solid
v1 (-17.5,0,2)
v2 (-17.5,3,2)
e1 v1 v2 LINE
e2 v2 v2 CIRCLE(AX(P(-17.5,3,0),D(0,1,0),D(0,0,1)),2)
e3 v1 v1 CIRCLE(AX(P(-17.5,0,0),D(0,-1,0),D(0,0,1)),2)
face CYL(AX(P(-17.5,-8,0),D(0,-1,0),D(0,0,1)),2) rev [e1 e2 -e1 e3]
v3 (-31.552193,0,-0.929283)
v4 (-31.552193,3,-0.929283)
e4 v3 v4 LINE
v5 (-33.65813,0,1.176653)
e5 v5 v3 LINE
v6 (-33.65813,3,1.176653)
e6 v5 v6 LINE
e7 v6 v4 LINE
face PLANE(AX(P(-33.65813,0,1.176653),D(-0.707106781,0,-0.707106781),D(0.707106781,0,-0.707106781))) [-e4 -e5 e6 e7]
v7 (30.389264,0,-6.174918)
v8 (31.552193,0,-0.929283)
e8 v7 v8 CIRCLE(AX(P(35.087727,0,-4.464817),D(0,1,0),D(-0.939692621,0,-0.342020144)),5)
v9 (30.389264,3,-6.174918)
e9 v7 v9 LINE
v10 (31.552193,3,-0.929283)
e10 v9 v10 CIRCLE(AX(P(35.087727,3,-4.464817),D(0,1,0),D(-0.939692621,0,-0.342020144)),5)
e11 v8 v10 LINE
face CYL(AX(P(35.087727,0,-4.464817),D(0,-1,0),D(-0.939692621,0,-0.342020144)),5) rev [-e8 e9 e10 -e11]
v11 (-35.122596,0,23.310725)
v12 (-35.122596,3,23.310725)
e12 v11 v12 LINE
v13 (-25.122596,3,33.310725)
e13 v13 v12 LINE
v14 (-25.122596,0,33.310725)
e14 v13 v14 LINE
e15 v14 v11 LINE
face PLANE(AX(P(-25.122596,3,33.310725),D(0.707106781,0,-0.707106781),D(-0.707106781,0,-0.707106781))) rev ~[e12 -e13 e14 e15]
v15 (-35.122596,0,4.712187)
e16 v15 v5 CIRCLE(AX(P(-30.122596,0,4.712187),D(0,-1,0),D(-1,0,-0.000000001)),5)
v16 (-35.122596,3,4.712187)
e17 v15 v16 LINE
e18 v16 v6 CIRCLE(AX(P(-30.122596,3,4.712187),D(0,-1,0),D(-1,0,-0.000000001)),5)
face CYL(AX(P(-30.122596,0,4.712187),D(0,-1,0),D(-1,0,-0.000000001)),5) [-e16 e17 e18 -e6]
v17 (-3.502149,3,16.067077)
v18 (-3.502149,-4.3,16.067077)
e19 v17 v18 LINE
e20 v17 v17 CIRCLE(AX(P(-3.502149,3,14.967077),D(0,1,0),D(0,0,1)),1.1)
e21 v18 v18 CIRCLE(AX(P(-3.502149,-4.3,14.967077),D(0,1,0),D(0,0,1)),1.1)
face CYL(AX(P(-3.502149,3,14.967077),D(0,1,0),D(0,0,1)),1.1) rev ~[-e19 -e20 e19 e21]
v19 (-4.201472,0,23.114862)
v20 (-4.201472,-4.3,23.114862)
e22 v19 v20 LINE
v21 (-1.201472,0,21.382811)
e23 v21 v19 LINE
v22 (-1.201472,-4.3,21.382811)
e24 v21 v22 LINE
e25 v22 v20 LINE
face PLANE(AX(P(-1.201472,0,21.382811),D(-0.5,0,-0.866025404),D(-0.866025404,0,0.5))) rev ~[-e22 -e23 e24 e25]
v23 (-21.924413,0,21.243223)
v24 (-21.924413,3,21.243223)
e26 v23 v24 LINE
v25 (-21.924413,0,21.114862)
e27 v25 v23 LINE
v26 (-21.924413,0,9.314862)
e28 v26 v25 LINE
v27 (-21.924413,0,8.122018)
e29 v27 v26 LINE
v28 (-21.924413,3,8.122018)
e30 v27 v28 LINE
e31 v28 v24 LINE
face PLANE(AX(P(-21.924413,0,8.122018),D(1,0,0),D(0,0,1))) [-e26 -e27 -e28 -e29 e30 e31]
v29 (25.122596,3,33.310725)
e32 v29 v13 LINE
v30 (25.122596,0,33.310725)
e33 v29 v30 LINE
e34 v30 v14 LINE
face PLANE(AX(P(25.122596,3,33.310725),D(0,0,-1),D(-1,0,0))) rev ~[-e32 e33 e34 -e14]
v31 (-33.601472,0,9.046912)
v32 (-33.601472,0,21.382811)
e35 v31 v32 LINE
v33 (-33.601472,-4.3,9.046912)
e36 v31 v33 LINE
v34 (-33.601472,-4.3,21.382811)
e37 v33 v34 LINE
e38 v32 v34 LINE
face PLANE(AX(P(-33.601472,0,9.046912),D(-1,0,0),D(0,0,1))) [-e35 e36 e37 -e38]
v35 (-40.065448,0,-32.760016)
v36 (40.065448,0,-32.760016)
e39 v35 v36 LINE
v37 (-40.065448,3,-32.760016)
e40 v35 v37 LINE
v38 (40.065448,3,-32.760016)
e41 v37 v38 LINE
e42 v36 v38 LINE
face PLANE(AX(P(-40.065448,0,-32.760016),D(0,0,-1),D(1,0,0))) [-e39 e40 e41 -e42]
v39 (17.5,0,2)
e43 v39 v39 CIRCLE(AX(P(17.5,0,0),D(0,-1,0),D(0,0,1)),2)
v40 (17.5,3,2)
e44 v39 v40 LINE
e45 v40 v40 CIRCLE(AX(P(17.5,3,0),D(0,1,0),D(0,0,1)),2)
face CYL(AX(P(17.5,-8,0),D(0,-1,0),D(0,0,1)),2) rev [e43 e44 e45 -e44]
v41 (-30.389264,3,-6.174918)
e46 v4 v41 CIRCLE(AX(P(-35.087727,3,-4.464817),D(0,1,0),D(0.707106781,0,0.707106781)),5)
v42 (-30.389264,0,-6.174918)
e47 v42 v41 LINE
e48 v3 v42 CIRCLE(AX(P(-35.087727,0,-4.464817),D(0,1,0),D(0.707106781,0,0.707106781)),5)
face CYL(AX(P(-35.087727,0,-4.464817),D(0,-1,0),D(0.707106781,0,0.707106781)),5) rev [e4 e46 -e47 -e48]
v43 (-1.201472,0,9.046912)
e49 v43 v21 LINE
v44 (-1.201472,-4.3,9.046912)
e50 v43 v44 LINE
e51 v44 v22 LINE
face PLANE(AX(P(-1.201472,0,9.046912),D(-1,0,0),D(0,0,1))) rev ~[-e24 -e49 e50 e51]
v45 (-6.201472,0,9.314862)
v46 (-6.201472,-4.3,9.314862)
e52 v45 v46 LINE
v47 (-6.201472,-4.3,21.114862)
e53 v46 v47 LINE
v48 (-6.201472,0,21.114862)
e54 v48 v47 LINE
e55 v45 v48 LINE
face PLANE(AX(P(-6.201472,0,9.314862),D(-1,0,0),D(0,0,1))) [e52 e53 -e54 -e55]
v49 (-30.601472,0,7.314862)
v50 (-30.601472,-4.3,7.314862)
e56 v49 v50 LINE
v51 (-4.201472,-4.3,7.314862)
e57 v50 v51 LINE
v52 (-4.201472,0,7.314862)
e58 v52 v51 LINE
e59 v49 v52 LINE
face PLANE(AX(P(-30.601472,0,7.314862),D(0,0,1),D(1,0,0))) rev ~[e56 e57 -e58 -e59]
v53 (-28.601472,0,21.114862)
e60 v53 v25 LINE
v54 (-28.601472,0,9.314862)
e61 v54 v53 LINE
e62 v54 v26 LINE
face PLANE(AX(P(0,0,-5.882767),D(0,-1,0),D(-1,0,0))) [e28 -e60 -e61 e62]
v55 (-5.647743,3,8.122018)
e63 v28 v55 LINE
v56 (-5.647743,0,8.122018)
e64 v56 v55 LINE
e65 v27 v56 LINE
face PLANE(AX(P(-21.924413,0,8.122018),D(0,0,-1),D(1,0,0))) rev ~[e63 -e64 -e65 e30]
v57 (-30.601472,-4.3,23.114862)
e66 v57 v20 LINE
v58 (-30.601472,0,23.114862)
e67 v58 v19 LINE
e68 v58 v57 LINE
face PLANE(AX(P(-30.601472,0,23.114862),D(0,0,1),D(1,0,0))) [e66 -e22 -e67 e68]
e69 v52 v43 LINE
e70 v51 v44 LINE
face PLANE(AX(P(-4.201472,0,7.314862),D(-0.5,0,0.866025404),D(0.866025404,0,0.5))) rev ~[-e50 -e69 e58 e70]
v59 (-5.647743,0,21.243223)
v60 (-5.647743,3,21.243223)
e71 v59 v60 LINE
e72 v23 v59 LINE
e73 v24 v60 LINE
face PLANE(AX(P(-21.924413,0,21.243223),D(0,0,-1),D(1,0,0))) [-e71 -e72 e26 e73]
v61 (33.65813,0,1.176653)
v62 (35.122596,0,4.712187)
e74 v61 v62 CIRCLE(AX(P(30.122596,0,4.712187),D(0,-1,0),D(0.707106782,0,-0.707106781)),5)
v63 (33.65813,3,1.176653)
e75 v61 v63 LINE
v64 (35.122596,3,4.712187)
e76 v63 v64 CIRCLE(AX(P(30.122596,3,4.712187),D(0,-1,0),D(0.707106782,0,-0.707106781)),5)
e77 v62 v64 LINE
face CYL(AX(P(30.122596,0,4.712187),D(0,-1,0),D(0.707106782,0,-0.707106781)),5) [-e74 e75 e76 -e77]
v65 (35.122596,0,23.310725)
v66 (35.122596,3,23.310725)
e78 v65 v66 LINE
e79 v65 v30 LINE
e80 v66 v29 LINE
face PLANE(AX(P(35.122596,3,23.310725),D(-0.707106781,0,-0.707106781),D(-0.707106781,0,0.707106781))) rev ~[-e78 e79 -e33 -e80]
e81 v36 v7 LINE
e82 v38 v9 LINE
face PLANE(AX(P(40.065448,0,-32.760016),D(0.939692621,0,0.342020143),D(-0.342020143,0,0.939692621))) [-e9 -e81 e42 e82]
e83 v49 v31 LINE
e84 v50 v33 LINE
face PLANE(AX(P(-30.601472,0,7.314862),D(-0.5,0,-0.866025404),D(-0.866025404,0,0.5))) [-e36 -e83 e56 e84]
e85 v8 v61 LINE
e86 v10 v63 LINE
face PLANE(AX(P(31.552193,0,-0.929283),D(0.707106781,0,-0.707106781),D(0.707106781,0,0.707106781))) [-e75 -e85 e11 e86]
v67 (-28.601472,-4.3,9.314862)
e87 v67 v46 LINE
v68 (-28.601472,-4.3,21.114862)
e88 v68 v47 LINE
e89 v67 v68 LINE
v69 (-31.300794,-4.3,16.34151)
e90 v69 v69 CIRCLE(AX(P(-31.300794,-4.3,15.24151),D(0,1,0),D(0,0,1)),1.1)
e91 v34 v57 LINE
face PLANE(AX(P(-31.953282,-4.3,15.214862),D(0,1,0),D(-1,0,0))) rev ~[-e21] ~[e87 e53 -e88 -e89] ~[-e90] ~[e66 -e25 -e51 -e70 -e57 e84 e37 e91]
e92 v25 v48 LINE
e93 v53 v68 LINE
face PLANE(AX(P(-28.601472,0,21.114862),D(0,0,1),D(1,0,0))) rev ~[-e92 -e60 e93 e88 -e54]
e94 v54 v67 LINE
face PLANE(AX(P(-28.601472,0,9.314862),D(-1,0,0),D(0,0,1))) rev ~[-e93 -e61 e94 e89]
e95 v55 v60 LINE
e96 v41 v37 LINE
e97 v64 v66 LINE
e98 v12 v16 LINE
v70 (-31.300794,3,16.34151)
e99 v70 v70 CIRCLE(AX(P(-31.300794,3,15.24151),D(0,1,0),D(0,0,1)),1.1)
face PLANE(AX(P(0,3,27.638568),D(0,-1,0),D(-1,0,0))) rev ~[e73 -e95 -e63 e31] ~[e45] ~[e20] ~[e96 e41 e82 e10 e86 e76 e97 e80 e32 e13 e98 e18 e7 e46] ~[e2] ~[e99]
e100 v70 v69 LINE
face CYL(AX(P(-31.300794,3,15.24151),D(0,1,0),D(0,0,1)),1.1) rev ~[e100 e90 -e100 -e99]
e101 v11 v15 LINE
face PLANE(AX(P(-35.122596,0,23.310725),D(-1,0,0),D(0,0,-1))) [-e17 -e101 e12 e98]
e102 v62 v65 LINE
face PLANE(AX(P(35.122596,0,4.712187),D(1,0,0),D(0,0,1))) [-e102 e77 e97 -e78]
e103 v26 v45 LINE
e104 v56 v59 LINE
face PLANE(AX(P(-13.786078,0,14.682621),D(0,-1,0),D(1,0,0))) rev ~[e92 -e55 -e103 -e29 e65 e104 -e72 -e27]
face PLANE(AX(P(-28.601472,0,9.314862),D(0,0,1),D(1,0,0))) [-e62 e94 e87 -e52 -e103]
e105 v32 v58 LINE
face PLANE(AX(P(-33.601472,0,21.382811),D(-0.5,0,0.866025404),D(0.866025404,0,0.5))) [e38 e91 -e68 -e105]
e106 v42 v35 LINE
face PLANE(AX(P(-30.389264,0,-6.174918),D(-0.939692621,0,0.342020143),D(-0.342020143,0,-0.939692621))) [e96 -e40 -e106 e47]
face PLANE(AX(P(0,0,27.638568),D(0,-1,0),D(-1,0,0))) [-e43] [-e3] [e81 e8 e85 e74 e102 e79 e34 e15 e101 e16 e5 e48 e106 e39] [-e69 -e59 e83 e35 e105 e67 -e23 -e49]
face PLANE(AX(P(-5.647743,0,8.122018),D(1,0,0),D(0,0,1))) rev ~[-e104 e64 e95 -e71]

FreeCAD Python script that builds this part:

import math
import FreeCAD as App
import Part
import Sketcher
Q = App.Units.Quantity


def add_polygon(sketch, points):
    """Adds a closed chain of lines whose ends are joined by coincident constraints."""
    first, n = sketch.GeometryCount, len(points)
    for a, b in zip(points, points[1:] + points[:1]):
        sketch.addGeometry(Part.LineSegment(App.Vector(*a, 0), App.Vector(*b, 0)), False)
    for i in range(n):
        sketch.addConstraint(Sketcher.Constraint("Coincident", first + i, 2, first + (i + 1) % n, 1))

doc = App.newDocument("Part")
body = doc.addObject("PartDesign::Body", "Body")

sketch1 = body.newObject("Sketcher::SketchObject", "Sketch")
sketch1.AttachmentSupport = (doc.getObject("XZ_Plane"), [""])
sketch1.MapMode = "FlatFace"
sketch1.addGeometry(Part.LineSegment(App.Vector(-40.1, -32.8, 0), App.Vector(-30.4, -6.2, 0)), False)
sketch1.addGeometry(Part.ArcOfCircle(Part.Circle(App.Vector(-35.1, -4.5, 0), App.Vector(0, 0, 1), 5), math.radians(-20), math.radians(45)), False)
sketch1.addGeometry(Part.LineSegment(App.Vector(-31.6, -0.9, 0), App.Vector(-33.7, 1.2, 0)), False)
sketch1.addGeometry(Part.ArcOfCircle(Part.Circle(App.Vector(-30.1, 4.7, 0), App.Vector(0, 0, 1), 5), math.radians(-180), math.radians(-135)), False)
sketch1.addGeometry(Part.LineSegment(App.Vector(-35.1, 4.7, 0), App.Vector(-35.1, 23.3, 0)), False)
sketch1.addGeometry(Part.LineSegment(App.Vector(-35.1, 23.3, 0), App.Vector(35.1, 23.3, 0)), False)
sketch1.addGeometry(Part.LineSegment(App.Vector(35.1, 23.3, 0), App.Vector(35.1, 4.7, 0)), False)
sketch1.addGeometry(Part.ArcOfCircle(Part.Circle(App.Vector(30.1, 4.7, 0), App.Vector(0, 0, 1), 5), math.radians(-45), math.radians(0)), False)
sketch1.addGeometry(Part.LineSegment(App.Vector(33.7, 1.2, 0), App.Vector(31.6, -0.9, 0)), False)
sketch1.addGeometry(Part.ArcOfCircle(Part.Circle(App.Vector(35.1, -4.5, 0), App.Vector(0, 0, 1), 5), math.radians(135), math.radians(200)), False)
sketch1.addGeometry(Part.LineSegment(App.Vector(30.4, -6.2, 0), App.Vector(40.1, -32.8, 0)), False)
sketch1.addGeometry(Part.LineSegment(App.Vector(40.1, -32.8, 0), App.Vector(-40.1, -32.8, 0)), False)
sketch1.addConstraint(Sketcher.Constraint("Tangent", 0, 2, 1, 1))
sketch1.addConstraint(Sketcher.Constraint("Tangent", 1, 2, 2, 1))
sketch1.addConstraint(Sketcher.Constraint("Tangent", 2, 2, 3, 2))
sketch1.addConstraint(Sketcher.Constraint("Tangent", 3, 1, 4, 1))
sketch1.addConstraint(Sketcher.Constraint("Coincident", 4, 2, 5, 1))
sketch1.addConstraint(Sketcher.Constraint("Coincident", 5, 2, 6, 1))
sketch1.addConstraint(Sketcher.Constraint("Tangent", 6, 2, 7, 2))
sketch1.addConstraint(Sketcher.Constraint("Tangent", 7, 1, 8, 1))
sketch1.addConstraint(Sketcher.Constraint("Tangent", 8, 2, 9, 1))
sketch1.addConstraint(Sketcher.Constraint("Tangent", 9, 2, 10, 1))
sketch1.addConstraint(Sketcher.Constraint("Coincident", 10, 2, 11, 1))
sketch1.addConstraint(Sketcher.Constraint("Coincident", 11, 2, 0, 1))
sketch1.addConstraint(Sketcher.Constraint("Vertical", 4))
sketch1.addConstraint(Sketcher.Constraint("Horizontal", 5))
sketch1.addConstraint(Sketcher.Constraint("Vertical", 6))
sketch1.addConstraint(Sketcher.Constraint("Horizontal", 11))
sketch1.addConstraint(Sketcher.Constraint("Equal", 1, 3))
sketch1.addConstraint(Sketcher.Constraint("Equal", 3, 7))
sketch1.addConstraint(Sketcher.Constraint("Equal", 7, 9))
sketch1.addConstraint(Sketcher.Constraint("Symmetric", 3, 3, 7, 3, -2))
sketch1.addConstraint(Sketcher.Constraint("Symmetric", 1, 3, 9, 3, -2))
sketch1.addConstraint(Sketcher.Constraint("Perpendicular", 2, 8))
sketch1.addConstraint(Sketcher.Constraint("Horizontal", 0, 2, 9, 2))
sketch1.addConstraint(Sketcher.Constraint("Radius", 1, Q("5 mm")))
sketch1.addConstraint(Sketcher.Constraint("Angle", 0, Q("70 deg")))
sketch1.addConstraint(Sketcher.Constraint("DistanceX", 5, 1, 5, 2, Q("70.245192 mm")))
sketch1.addConstraint(Sketcher.Constraint("DistanceY", 4, 1, 4, 2, Q("18.598538 mm")))
sketch1.addConstraint(Sketcher.Constraint("DistanceY", 10, 2, 9, 2, Q("26.585098 mm")))
sketch1.addConstraint(Sketcher.Constraint("DistanceX", 11, 2, 11, 1, Q("80.130897 mm")))
sketch1.addConstraint(Sketcher.Constraint("DistanceY", 1, 3, -1, 1, Q("4.464817 mm")))
pad1 = body.newObject("PartDesign::Pad", "Pad")
pad1.Profile = sketch1
pad1.Length = 3
pad1.Reversed = True

sketch2 = body.newObject("Sketcher::SketchObject", "Sketch001")
sketch2.AttachmentSupport = (doc.getObject("XZ_Plane"), [""])
sketch2.MapMode = "FlatFace"
sketch2.AttachmentOffset = App.Placement(App.Vector(0, 0, -3), App.Rotation())
sketch2.addGeometry(Part.Circle(App.Vector(17.5, 0, 0), App.Vector(0, 0, 1), 2), False)
sketch2.addGeometry(Part.Circle(App.Vector(-17.5, 0, 0), App.Vector(0, 0, 1), 2), False)
sketch2.addConstraint(Sketcher.Constraint("Equal", 0, 1))
sketch2.addConstraint(Sketcher.Constraint("Symmetric", 0, 3, 1, 3, -1, 1))
sketch2.addConstraint(Sketcher.Constraint("PointOnObject", 0, 3, -1))
sketch2.addConstraint(Sketcher.Constraint("Diameter", 0, Q("4 mm")))
sketch2.addConstraint(Sketcher.Constraint("DistanceX", 1, 3, 0, 3, Q("35 mm")))
pad2 = body.newObject("PartDesign::Pad", "Pad001")
pad2.Profile = sketch2
pad2.Length = 10
pad2.Reversed = True

sketch3 = body.newObject("Sketcher::SketchObject", "Sketch002")
sketch3.AttachmentSupport = (doc.getObject("XZ_Plane"), [""])
sketch3.MapMode = "FlatFace"
sketch3.AttachmentOffset = App.Placement(App.Vector(0, 0, -3), App.Rotation())
sketch3.addGeometry(Part.Circle(App.Vector(-31.3, 15.2, 0), App.Vector(0, 0, 1), 1.1), False)
sketch3.addGeometry(Part.Circle(App.Vector(-3.5, 15, 0), App.Vector(0, 0, 1), 1.1), False)
sketch3.addConstraint(Sketcher.Constraint("Equal", 0, 1))
sketch3.addConstraint(Sketcher.Constraint("Diameter", 0, Q("2.2 mm")))
sketch3.addConstraint(Sketcher.Constraint("DistanceY", -1, 1, 0, 3, Q("15.24151 mm")))
sketch3.addConstraint(Sketcher.Constraint("DistanceX", 1, 3, -1, 1, Q("3.502149 mm")))
sketch3.addConstraint(Sketcher.Constraint("DistanceX", 0, 3, -1, 1, Q("31.300794 mm")))
sketch3.addConstraint(Sketcher.Constraint("DistanceY", -1, 1, 1, 3, Q("14.967077 mm")))
pocket1 = body.newObject("PartDesign::Pocket", "Pocket")
pocket1.Profile = sketch3
pocket1.Length = 10
pocket1.Reversed = True

sketch4 = body.newObject("Sketcher::SketchObject", "Sketch003")
sketch4.AttachmentSupport = (doc.getObject("XZ_Plane"), [""])
sketch4.MapMode = "FlatFace"
add_polygon(sketch4, [(-31, 23), (-31, 7), (-4, 7), (-4, 23)])
add_polygon(sketch4, [(-6, 9), (-29, 9), (-29, 21), (-6, 21)])
sketch4.addConstraint(Sketcher.Constraint("Vertical", 0))
sketch4.addConstraint(Sketcher.Constraint("Horizontal", 1))
sketch4.addConstraint(Sketcher.Constraint("Vertical", 2))
sketch4.addConstraint(Sketcher.Constraint("Horizontal", 3))
sketch4.addConstraint(Sketcher.Constraint("Horizontal", 4))
sketch4.addConstraint(Sketcher.Constraint("Vertical", 5))
sketch4.addConstraint(Sketcher.Constraint("Horizontal", 6))
sketch4.addConstraint(Sketcher.Constraint("Vertical", 7))
sketch4.addConstraint(Sketcher.Constraint("DistanceX", 1, 1, 1, 2, Q("26.4 mm")))
sketch4.addConstraint(Sketcher.Constraint("DistanceX", 4, 2, 4, 1, Q("22.4 mm")))
sketch4.addConstraint(Sketcher.Constraint("DistanceY", 0, 2, 0, 1, Q("15.8 mm")))
sketch4.addConstraint(Sketcher.Constraint("DistanceY", 5, 1, 5, 2, Q("11.8 mm")))
sketch4.addConstraint(Sketcher.Constraint("DistanceX", 0, 2, 4, 2, Q("2 mm")))
sketch4.addConstraint(Sketcher.Constraint("DistanceY", 0, 2, 4, 2, Q("2 mm")))
sketch4.addConstraint(Sketcher.Constraint("DistanceX", 0, 2, -1, 1, Q("30.601472 mm")))
sketch4.addConstraint(Sketcher.Constraint("DistanceY", -1, 1, 0, 2, Q("7.314862 mm")))
pad3 = body.newObject("PartDesign::Pad", "Pad002")
pad3.Profile = sketch4
pad3.Length = 4.3

sketch5 = body.newObject("Sketcher::SketchObject", "Sketch004")
sketch5.AttachmentSupport = (doc.getObject("XZ_Plane"), [""])
sketch5.MapMode = "FlatFace"
add_polygon(sketch5, [(-30.6, 7.3), (-30.6, 23.1), (-33.6, 21.4), (-33.6, 9)])
add_polygon(sketch5, [(-1.2, 21.4), (-4.2, 23.1), (-4.2, 7.3), (-1.2, 9)])
sketch5.addConstraint(Sketcher.Constraint("Vertical", 0))
sketch5.addConstraint(Sketcher.Constraint("Vertical", 2))
sketch5.addConstraint(Sketcher.Constraint("Vertical", 5))
sketch5.addConstraint(Sketcher.Constraint("Vertical", 7))
sketch5.addConstraint(Sketcher.Constraint("Parallel", 3, 4))
sketch5.addConstraint(Sketcher.Constraint("Parallel", 1, 6))
sketch5.addConstraint(Sketcher.Constraint("Horizontal", 0, 2, 4, 2))
sketch5.addConstraint(Sketcher.Constraint("Horizontal", 3, 2, 5, 2))
sketch5.addConstraint(Sketcher.Constraint("Horizontal", 2, 2, 6, 2))
sketch5.addConstraint(Sketcher.Constraint("Horizontal", 1, 2, 7, 2))
sketch5.addConstraint(Sketcher.Constraint("Angle", 1, Q("-150 deg")))
sketch5.addConstraint(Sketcher.Constraint("DistanceY", 0, 1, 0, 2, Q("15.8 mm")))
sketch5.addConstraint(Sketcher.Constraint("DistanceX", 1, 2, 0, 2, Q("3 mm")))
sketch5.addConstraint(Sketcher.Constraint("DistanceX", 0, 2, 4, 2, Q("26.4 mm")))
sketch5.addConstraint(Sketcher.Constraint("DistanceX", 0, 2, -1, 1, Q("30.601472 mm")))
sketch5.addConstraint(Sketcher.Constraint("DistanceY", -1, 1, 0, 2, Q("23.114862 mm")))
pad4 = body.newObject("PartDesign::Pad", "Pad003")
pad4.Profile = sketch5
pad4.Length = 4.3

sketch6 = body.newObject("Sketcher::SketchObject", "Sketch005")
sketch6.AttachmentSupport = (doc.getObject("XZ_Plane"), [""])
sketch6.MapMode = "FlatFace"
sketch6.AttachmentOffset = App.Placement(App.Vector(0, 0, -3), App.Rotation())
sketch6.addGeometry(Part.Circle(App.Vector(-31.3, 15.2, 0), App.Vector(0, 0, 1), 1.1), False)
sketch6.addGeometry(Part.Circle(App.Vector(-3.5, 15, 0), App.Vector(0, 0, 1), 1.1), False)
sketch6.addConstraint(Sketcher.Constraint("Equal", 0, 1))
sketch6.addConstraint(Sketcher.Constraint("Diameter", 0, Q("2.2 mm")))
sketch6.addConstraint(Sketcher.Constraint("DistanceY", -1, 1, 0, 3, Q("15.24151 mm")))
sketch6.addConstraint(Sketcher.Constraint("DistanceX", 1, 3, -1, 1, Q("3.502149 mm")))
sketch6.addConstraint(Sketcher.Constraint("DistanceX", 0, 3, -1, 1, Q("31.300794 mm")))
sketch6.addConstraint(Sketcher.Constraint("DistanceY", -1, 1, 1, 3, Q("14.967077 mm")))
pocket2 = body.newObject("PartDesign::Pocket", "Pocket001")
pocket2.Profile = sketch6
pocket2.Length = 20.3
pocket2.Reversed = True

sketch7 = body.newObject("Sketcher::SketchObject", "Sketch006")
sketch7.AttachmentSupport = (doc.getObject("XZ_Plane"), [""])
sketch7.MapMode = "FlatFace"
add_polygon(sketch7, [(-22, 21), (-22, 8), (-6, 8), (-6, 21)])
sketch7.addConstraint(Sketcher.Constraint("Vertical", 0))
sketch7.addConstraint(Sketcher.Constraint("Horizontal", 1))
sketch7.addConstraint(Sketcher.Constraint("Vertical", 2))
sketch7.addConstraint(Sketcher.Constraint("Horizontal", 3))
sketch7.addConstraint(Sketcher.Constraint("DistanceX", 1, 1, 1, 2, Q("16.276669 mm")))
sketch7.addConstraint(Sketcher.Constraint("DistanceY", 0, 2, 0, 1, Q("13.121205 mm")))
sketch7.addConstraint(Sketcher.Constraint("DistanceY", -1, 1, 0, 2, Q("8.122018 mm")))
sketch7.addConstraint(Sketcher.Constraint("DistanceX", 0, 2, -1, 1, Q("21.924413 mm")))
pocket3 = body.newObject("PartDesign::Pocket", "Pocket002")
pocket3.Profile = sketch7
pocket3.Length = 20.3

sketch8 = body.newObject("Sketcher::SketchObject", "Sketch007")
sketch8.AttachmentSupport = (doc.getObject("XZ_Plane"), [""])
sketch8.MapMode = "FlatFace"
sketch8.AttachmentOffset = App.Placement(App.Vector(0, 0, -3), App.Rotation())
add_polygon(sketch8, [(35, 23), (-35, 23), (-25, 33), (25, 33)])
sketch8.addConstraint(Sketcher.Constraint("Horizontal", 0))
sketch8.addConstraint(Sketcher.Constraint("Horizontal", 2))
sketch8.addConstraint(Sketcher.Constraint("Perpendicular", 1, 3))
sketch8.addConstraint(Sketcher.Constraint("Equal", 1, 3))
sketch8.addConstraint(Sketcher.Constraint("DistanceX", 0, 2, 1, 2, Q("10 mm")))
sketch8.addConstraint(Sketcher.Constraint("DistanceX", 0, 2, 0, 1, Q("70.245192 mm")))
sketch8.addConstraint(Sketcher.Constraint("DistanceX", 0, 2, -1, 1, Q("35.122596 mm")))
sketch8.addConstraint(Sketcher.Constraint("DistanceY", -1, 1, 0, 2, Q("23.310725 mm")))
pad5 = body.newObject("PartDesign::Pad", "Pad004")
pad5.Profile = sketch8
pad5.Length = 3

sketch9 = body.newObject("Sketcher::SketchObject", "Sketch008")
sketch9.AttachmentSupport = (doc.getObject("XZ_Plane"), [""])
sketch9.MapMode = "FlatFace"
sketch9.AttachmentOffset = App.Placement(App.Vector(0, 0, 8), App.Rotation())
sketch9.addGeometry(Part.Circle(App.Vector(-17.5, 0, 0), App.Vector(0, 0, 1), 2), False)
sketch9.addGeometry(Part.Circle(App.Vector(17.5, 0, 0), App.Vector(0, 0, 1), 2), False)
sketch9.addConstraint(Sketcher.Constraint("Equal", 0, 1))
sketch9.addConstraint(Sketcher.Constraint("Symmetric", 0, 3, 1, 3, -1, 1))
sketch9.addConstraint(Sketcher.Constraint("PointOnObject", 0, 3, -1))
sketch9.addConstraint(Sketcher.Constraint("Diameter", 0, Q("4 mm")))
sketch9.addConstraint(Sketcher.Constraint("DistanceX", 0, 3, 1, 3, Q("35 mm")))
pocket4 = body.newObject("PartDesign::Pocket", "Pocket003")
pocket4.Profile = sketch9
pocket4.Length = 21

doc.recompute()
